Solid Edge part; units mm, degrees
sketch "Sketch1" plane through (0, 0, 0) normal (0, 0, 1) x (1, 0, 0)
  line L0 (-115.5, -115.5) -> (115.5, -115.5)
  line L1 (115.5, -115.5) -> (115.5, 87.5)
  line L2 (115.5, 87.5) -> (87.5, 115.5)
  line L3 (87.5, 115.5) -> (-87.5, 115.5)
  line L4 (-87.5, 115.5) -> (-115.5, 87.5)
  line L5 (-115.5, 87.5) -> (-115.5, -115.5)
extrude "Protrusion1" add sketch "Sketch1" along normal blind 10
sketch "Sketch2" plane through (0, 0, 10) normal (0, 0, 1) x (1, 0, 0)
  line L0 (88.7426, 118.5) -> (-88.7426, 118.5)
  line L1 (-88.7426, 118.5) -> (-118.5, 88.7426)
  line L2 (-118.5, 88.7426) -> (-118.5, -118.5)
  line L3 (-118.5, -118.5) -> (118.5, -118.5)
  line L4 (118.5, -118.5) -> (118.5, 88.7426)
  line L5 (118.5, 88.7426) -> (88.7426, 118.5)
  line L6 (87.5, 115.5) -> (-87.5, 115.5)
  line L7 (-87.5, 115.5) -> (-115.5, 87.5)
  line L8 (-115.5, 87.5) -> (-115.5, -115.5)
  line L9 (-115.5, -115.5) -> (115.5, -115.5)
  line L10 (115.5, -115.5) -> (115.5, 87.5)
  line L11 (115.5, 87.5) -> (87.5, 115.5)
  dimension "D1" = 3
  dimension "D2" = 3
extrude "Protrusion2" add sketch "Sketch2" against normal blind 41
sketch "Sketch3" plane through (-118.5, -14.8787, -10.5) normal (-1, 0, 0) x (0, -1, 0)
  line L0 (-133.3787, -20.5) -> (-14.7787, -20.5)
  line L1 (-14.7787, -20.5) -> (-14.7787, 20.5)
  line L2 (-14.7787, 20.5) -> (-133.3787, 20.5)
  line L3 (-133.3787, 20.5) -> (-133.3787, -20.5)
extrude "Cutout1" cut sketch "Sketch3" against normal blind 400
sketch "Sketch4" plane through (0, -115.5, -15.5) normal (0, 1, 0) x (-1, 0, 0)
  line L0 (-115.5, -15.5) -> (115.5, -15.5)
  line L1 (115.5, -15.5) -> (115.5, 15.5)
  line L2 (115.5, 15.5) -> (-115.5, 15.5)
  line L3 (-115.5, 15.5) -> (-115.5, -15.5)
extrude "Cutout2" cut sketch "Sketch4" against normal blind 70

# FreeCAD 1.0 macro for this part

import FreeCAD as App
import Part
import Sketcher
Q = App.Units.Quantity

doc = App.newDocument("Part")
body = doc.addObject("PartDesign::Body", "Body")

sketch1 = body.newObject("Sketcher::SketchObject", "Sketch")
sketch1.AttachmentSupport = (doc.getObject("XY_Plane"), [""])
sketch1.MapMode = "FlatFace"
sketch1.addGeometry([
    Part.LineSegment(App.Vector(-116, 88, 0), App.Vector(-116, -116, 0)),
    Part.LineSegment(App.Vector(-116, -116, 0), App.Vector(116, -116, 0)),
    Part.LineSegment(App.Vector(116, -116, 0), App.Vector(116, 88, 0)),
    Part.LineSegment(App.Vector(116, 88, 0), App.Vector(88, 116, 0)),
    Part.LineSegment(App.Vector(88, 116, 0), App.Vector(-88, 116, 0)),
    Part.LineSegment(App.Vector(-88, 116, 0), App.Vector(-116, 88, 0)),
], False)
sketch1.addConstraint([
    Sketcher.Constraint("Coincident", 0, 2, 1, 1),
    Sketcher.Constraint("Coincident", 1, 2, 2, 1),
    Sketcher.Constraint("Coincident", 2, 2, 3, 1),
    Sketcher.Constraint("Coincident", 3, 2, 4, 1),
    Sketcher.Constraint("Coincident", 4, 2, 5, 1),
    Sketcher.Constraint("Coincident", 5, 2, 0, 1),
    Sketcher.Constraint("Vertical", 0),
    Sketcher.Constraint("Horizontal", 1),
    Sketcher.Constraint("Vertical", 2),
    Sketcher.Constraint("Horizontal", 4),
    Sketcher.Constraint("Symmetric", 2, 2, 5, 2, -2),
    Sketcher.Constraint("Perpendicular", 3, 5),
    Sketcher.Constraint("Equal", 3, 5),
    Sketcher.Constraint("DistanceX", 1, 1, 1, 2, Q("231 mm")),
    Sketcher.Constraint("DistanceX", 4, 2, 4, 1, Q("175 mm")),
    Sketcher.Constraint("DistanceY", 0, 2, 0, 1, Q("203 mm")),
    Sketcher.Constraint("DistanceY", 0, 2, -1, 1, Q("115.5 mm")),
])
pad1 = body.newObject("PartDesign::Pad", "Pad")
pad1.Profile = sketch1
pad1.Length = 10

sketch2 = body.newObject("Sketcher::SketchObject", "Sketch001")
sketch2.AttachmentSupport = (doc.getObject("XY_Plane"), [""])
sketch2.MapMode = "FlatFace"
sketch2.AttachmentOffset = App.Placement(App.Vector(0, 0, 10), App.Rotation())
sketch2.addGeometry([
    Part.LineSegment(App.Vector(118, 89, 0), App.Vector(89, 118, 0)),
    Part.LineSegment(App.Vector(89, 118, 0), App.Vector(-89, 118, 0)),
    Part.LineSegment(App.Vector(-89, 118, 0), App.Vector(-118, 89, 0)),
    Part.LineSegment(App.Vector(-118, 89, 0), App.Vector(-118, -118, 0)),
    Part.LineSegment(App.Vector(-118, -118, 0), App.Vector(118, -118, 0)),
    Part.LineSegment(App.Vector(118, -118, 0), App.Vector(118, 89, 0)),
    Part.LineSegment(App.Vector(-88, 116, 0), App.Vector(88, 116, 0)),
    Part.LineSegment(App.Vector(88, 116, 0), App.Vector(116, 88, 0)),
    Part.LineSegment(App.Vector(116, 88, 0), App.Vector(116, -116, 0)),
    Part.LineSegment(App.Vector(116, -116, 0), App.Vector(-116, -116, 0)),
    Part.LineSegment(App.Vector(-116, -116, 0), App.Vector(-116, 88, 0)),
    Part.LineSegment(App.Vector(-116, 88, 0), App.Vector(-88, 116, 0)),
], False)
sketch2.addConstraint([
    Sketcher.Constraint("Coincident", 0, 2, 1, 1),
    Sketcher.Constraint("Coincident", 1, 2, 2, 1),
    Sketcher.Constraint("Coincident", 2, 2, 3, 1),
    Sketcher.Constraint("Coincident", 3, 2, 4, 1),
    Sketcher.Constraint("Coincident", 4, 2, 5, 1),
    Sketcher.Constraint("Coincident", 5, 2, 0, 1),
    Sketcher.Constraint("Coincident", 6, 2, 7, 1),
    Sketcher.Constraint("Coincident", 7, 2, 8, 1),
    Sketcher.Constraint("Coincident", 8, 2, 9, 1),
    Sketcher.Constraint("Coincident", 9, 2, 10, 1),
    Sketcher.Constraint("Coincident", 10, 2, 11, 1),
    Sketcher.Constraint("Coincident", 11, 2, 6, 1),
    Sketcher.Constraint("Horizontal", 1),
    Sketcher.Constraint("Vertical", 3),
    Sketcher.Constraint("Horizontal", 4),
    Sketcher.Constraint("Vertical", 5),
    Sketcher.Constraint("Horizontal", 6),
    Sketcher.Constraint("Vertical", 8),
    Sketcher.Constraint("Horizontal", 9),
    Sketcher.Constraint("Vertical", 10),
    Sketcher.Constraint("Symmetric", 2, 2, 5, 2, -2),
    Sketcher.Constraint("Symmetric", 7, 2, 10, 2, -2),
    Sketcher.Constraint("Perpendicular", 0, 2),
    Sketcher.Constraint("Perpendicular", 2, 7),
    Sketcher.Constraint("Perpendicular", 7, 11),
    Sketcher.Constraint("Equal", 0, 2),
    Sketcher.Constraint("DistanceX", 4, 1, 4, 2, Q("237 mm")),
    Sketcher.Constraint("DistanceX", 6, 1, 6, 2, Q("175 mm")),
    Sketcher.Constraint("DistanceX", 9, 2, 9, 1, Q("231 mm")),
    Sketcher.Constraint("DistanceY", 8, 2, 8, 1, Q("203 mm")),
    Sketcher.Constraint("DistanceY", 3, 2, 1, 2, Q("237 mm")),
    Sketcher.Constraint("DistanceY", 6, 2, 0, 2, Q("3 mm")),
    Sketcher.Constraint("DistanceY", -1, 1, 0, 2, Q("118.5 mm")),
    Sketcher.Constraint("DistanceX", 1, 2, 1, 1, Q("177.4852 mm")),
])
pad2 = body.newObject("PartDesign::Pad", "Pad001")
pad2.Profile = sketch2
pad2.Length = 41
pad2.Reversed = True

sketch3 = body.newObject("Sketcher::SketchObject", "Sketch002")
sketch3.AttachmentSupport = (doc.getObject("YZ_Plane"), [""])
sketch3.MapMode = "FlatFace"
sketch3.AttachmentOffset = App.Placement(App.Vector(0, 0, -118.5), App.Rotation())
sketch3.addGeometry([
    Part.LineSegment(App.Vector(118, 10, 0), App.Vector(118, -31, 0)),
    Part.LineSegment(App.Vector(118, -31, 0), App.Vector(0, -31, 0)),
    Part.LineSegment(App.Vector(0, -31, 0), App.Vector(0, 10, 0)),
    Part.LineSegment(App.Vector(0, 10, 0), App.Vector(118, 10, 0)),
], False)
sketch3.addConstraint([
    Sketcher.Constraint("Coincident", 0, 2, 1, 1),
    Sketcher.Constraint("Coincident", 1, 2, 2, 1),
    Sketcher.Constraint("Coincident", 2, 2, 3, 1),
    Sketcher.Constraint("Coincident", 3, 2, 0, 1),
    Sketcher.Constraint("Vertical", 0),
    Sketcher.Constraint("Horizontal", 1),
    Sketcher.Constraint("Vertical", 2),
    Sketcher.Constraint("Horizontal", 3),
    Sketcher.Constraint("DistanceY", 0, 2, 0, 1, Q("41 mm")),
    Sketcher.Constraint("DistanceX", 1, 2, 1, 1, Q("118.6 mm")),
    Sketcher.Constraint("DistanceY", 0, 2, -1, 1, Q("31 mm")),
    Sketcher.Constraint("DistanceX", -1, 1, 0, 2, Q("118.5 mm")),
])
pocket1 = body.newObject("PartDesign::Pocket", "Pocket")
pocket1.Profile = sketch3
pocket1.Length = 400
pocket1.Reversed = True

sketch4 = body.newObject("Sketcher::SketchObject", "Sketch003")
sketch4.AttachmentSupport = (doc.getObject("XZ_Plane"), [""])
sketch4.MapMode = "FlatFace"
sketch4.AttachmentOffset = App.Placement(App.Vector(0, 0, 115.5), App.Rotation())
sketch4.addGeometry([
    Part.LineSegment(App.Vector(116, 0, 0), App.Vector(116, -31, 0)),
    Part.LineSegment(App.Vector(116, -31, 0), App.Vector(-116, -31, 0)),
    Part.LineSegment(App.Vector(-116, -31, 0), App.Vector(-116, 0, 0)),
    Part.LineSegment(App.Vector(-116, 0, 0), App.Vector(116, 0, 0)),
], False)
sketch4.addConstraint([
    Sketcher.Constraint("Coincident", 0, 2, 1, 1),
    Sketcher.Constraint("Coincident", 1, 2, 2, 1),
    Sketcher.Constraint("Coincident", 2, 2, 3, 1),
    Sketcher.Constraint("Coincident", 3, 2, 0, 1),
    Sketcher.Constraint("Vertical", 0),
    Sketcher.Constraint("Horizontal", 1),
    Sketcher.Constraint("Vertical", 2),
    Sketcher.Constraint("Horizontal", 3),
    Sketcher.Constraint("Symmetric", 2, 2, 3, 2, -1, 1),
    Sketcher.Constraint("DistanceX", 1, 2, 1, 1, Q("231 mm")),
    Sketcher.Constraint("DistanceY", 0, 2, 0, 1, Q("31 mm")),
])
pocket2 = body.newObject("PartDesign::Pocket", "Pocket001")
pocket2.Profile = sketch4
pocket2.Length = 70
pocket2.Reversed = True

doc.recompute()
